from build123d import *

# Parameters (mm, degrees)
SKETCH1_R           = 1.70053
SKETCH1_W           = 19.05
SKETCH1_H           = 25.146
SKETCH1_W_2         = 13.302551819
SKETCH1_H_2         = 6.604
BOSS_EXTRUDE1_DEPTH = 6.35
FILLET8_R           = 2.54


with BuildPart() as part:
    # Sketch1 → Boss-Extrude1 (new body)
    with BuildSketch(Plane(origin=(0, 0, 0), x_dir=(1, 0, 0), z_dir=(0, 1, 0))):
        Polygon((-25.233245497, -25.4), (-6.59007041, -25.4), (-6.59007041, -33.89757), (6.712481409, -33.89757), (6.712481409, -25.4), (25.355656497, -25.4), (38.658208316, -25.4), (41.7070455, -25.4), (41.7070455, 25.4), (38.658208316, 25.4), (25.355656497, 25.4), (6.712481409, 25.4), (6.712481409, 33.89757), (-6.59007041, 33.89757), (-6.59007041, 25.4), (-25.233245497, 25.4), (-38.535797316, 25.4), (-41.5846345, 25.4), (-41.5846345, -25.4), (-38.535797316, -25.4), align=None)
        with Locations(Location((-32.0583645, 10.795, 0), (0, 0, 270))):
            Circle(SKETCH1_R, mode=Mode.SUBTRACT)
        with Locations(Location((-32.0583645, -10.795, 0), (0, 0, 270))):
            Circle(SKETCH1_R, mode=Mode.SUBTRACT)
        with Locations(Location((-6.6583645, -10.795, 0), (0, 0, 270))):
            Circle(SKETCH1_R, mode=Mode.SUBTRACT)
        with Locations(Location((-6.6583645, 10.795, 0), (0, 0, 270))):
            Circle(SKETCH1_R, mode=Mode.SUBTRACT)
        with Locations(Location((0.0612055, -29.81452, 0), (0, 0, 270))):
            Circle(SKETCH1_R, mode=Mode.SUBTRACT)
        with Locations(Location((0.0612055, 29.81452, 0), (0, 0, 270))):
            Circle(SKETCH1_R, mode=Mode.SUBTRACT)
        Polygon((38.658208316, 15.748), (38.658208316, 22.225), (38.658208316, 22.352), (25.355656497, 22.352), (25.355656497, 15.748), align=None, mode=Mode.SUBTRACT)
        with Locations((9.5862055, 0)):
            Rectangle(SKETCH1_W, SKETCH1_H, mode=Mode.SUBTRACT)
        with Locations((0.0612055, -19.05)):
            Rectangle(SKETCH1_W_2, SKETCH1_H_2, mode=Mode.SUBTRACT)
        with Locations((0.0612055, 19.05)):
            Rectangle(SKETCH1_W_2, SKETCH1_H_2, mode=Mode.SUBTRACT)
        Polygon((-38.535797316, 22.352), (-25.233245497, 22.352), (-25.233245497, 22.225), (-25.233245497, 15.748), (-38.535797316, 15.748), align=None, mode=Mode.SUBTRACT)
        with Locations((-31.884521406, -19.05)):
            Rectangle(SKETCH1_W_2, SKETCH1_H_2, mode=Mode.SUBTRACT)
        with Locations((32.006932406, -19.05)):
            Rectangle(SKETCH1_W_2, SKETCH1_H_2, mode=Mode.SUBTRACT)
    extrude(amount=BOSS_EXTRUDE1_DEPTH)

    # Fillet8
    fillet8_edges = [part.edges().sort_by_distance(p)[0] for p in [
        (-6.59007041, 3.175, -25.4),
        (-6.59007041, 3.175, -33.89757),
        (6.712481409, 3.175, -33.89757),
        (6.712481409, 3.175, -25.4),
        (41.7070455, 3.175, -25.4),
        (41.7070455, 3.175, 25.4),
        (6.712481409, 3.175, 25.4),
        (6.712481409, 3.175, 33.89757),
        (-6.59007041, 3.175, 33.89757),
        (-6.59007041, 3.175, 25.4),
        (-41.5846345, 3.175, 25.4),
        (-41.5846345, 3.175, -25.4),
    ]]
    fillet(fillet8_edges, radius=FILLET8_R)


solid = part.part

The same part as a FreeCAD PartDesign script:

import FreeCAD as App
import Part
import Sketcher
from FreeCAD import Vector
Q = App.Units.Quantity


def edges_at(feature, points):
    """Names of the edges that pass closest to the given points."""
    edges = feature.Shape.Edges
    near = lambda p: min(range(len(edges)), key=lambda i: edges[i].distToShape(Part.Vertex(*p))[0])
    return sorted({f"Edge{near(p) + 1}" for p in points})

doc = App.newDocument("Part")
params = doc.addObject("Spreadsheet::Sheet", "Params")
for row, (alias, value) in enumerate([
    ("sketch1_height", "2 in"),
    ("sketch1_width", "0.75 in"),
    ("sketch1_height2", "0.26 in"),
    ("sketch1_height3", "0.99 in"),
    ("pad1_length", "0.25 in"),
    ("fillet_radius", "0.1 in"),
], start=1):
    params.set(f"A{row}", alias)
    params.set(f"B{row}", "=" + value)
    params.setAlias(f"B{row}", alias)

body = doc.addObject("PartDesign::Body", "Body")

# Sketch on XZ plane
sketch1 = body.newObject("Sketcher::SketchObject", "Sketch")
sketch1.AttachmentSupport = (doc.getObject("XZ_Plane"), [""])
sketch1.MapMode = "FlatFace"
sketch1.addGeometry([
    Part.LineSegment(Vector(-6.59007, 25.4, 0), Vector(-6.59007, 33.89757, 0)),  # 0
    Part.LineSegment(Vector(-6.59007, 33.89757, 0), Vector(6.712481, 33.89757, 0)),  # 1
    Part.LineSegment(Vector(6.712481, 33.89757, 0), Vector(6.712481, 25.4, 0)),  # 2
    Part.LineSegment(Vector(6.712481, 25.4, 0), Vector(41.707045, 25.4, 0)),  # 3
    Part.LineSegment(Vector(41.707045, 25.4, 0), Vector(41.707045, -25.4, 0)),  # 4
    Part.LineSegment(Vector(41.707045, -25.4, 0), Vector(6.712481, -25.4, 0)),  # 5
    Part.LineSegment(Vector(6.712481, -25.4, 0), Vector(6.712481, -33.89757, 0)),  # 6
    Part.LineSegment(Vector(6.712481, -33.89757, 0), Vector(-6.59007, -33.89757, 0)),  # 7
    Part.LineSegment(Vector(-6.59007, -33.89757, 0), Vector(-6.59007, -25.4, 0)),  # 8
    Part.LineSegment(Vector(-6.59007, -25.4, 0), Vector(-41.584634, -25.4, 0)),  # 9
    Part.LineSegment(Vector(-41.584634, -25.4, 0), Vector(-41.584634, 25.4, 0)),  # 10
    Part.LineSegment(Vector(-41.584634, 25.4, 0), Vector(-6.59007, 25.4, 0)),  # 11
    Part.LineSegment(Vector(-25.233245, 22.352, 0), Vector(-38.535797, 22.352, 0)),  # 12
    Part.LineSegment(Vector(-38.535797, 22.352, 0), Vector(-38.535797, 15.748, 0)),  # 13
    Part.LineSegment(Vector(-38.535797, 15.748, 0), Vector(-25.233245, 15.748, 0)),  # 14
    Part.LineSegment(Vector(-25.233245, 15.748, 0), Vector(-25.233245, 22.352, 0)),  # 15
    Part.Circle(Vector(-32.058365, 10.795, 0), Vector(0, 0, 1), 1.70053),  # 16
    Part.Circle(Vector(-6.658365, 10.795, 0), Vector(0, 0, 1), 1.70053),  # 17
    Part.Circle(Vector(0.061206, 29.81452, 0), Vector(0, 0, 1), 1.70053),  # 18
    Part.LineSegment(Vector(6.712481, 22.352, 0), Vector(-6.59007, 22.352, 0)),  # 19
    Part.LineSegment(Vector(-6.59007, 22.352, 0), Vector(-6.59007, 15.748, 0)),  # 20
    Part.LineSegment(Vector(-6.59007, 15.748, 0), Vector(6.712481, 15.748, 0)),  # 21
    Part.LineSegment(Vector(6.712481, 15.748, 0), Vector(6.712481, 22.352, 0)),  # 22
    Part.LineSegment(Vector(38.658208, 22.352, 0), Vector(25.355656, 22.352, 0)),  # 23
    Part.LineSegment(Vector(25.355656, 22.352, 0), Vector(25.355656, 15.748, 0)),  # 24
    Part.LineSegment(Vector(25.355656, 15.748, 0), Vector(38.658208, 15.748, 0)),  # 25
    Part.LineSegment(Vector(38.658208, 15.748, 0), Vector(38.658208, 22.352, 0)),  # 26
    Part.LineSegment(Vector(19.111206, 12.573, 0), Vector(0.061206, 12.573, 0)),  # 27
    Part.LineSegment(Vector(0.061206, 12.573, 0), Vector(0.061206, -12.573, 0)),  # 28
    Part.LineSegment(Vector(0.061206, -12.573, 0), Vector(19.111206, -12.573, 0)),  # 29
    Part.LineSegment(Vector(19.111206, -12.573, 0), Vector(19.111206, 12.573, 0)),  # 30
    Part.Circle(Vector(-32.058365, -10.795, 0), Vector(0, 0, 1), 1.70053),  # 31
    Part.Circle(Vector(-6.658365, -10.795, 0), Vector(0, 0, 1), 1.70053),  # 32
    Part.LineSegment(Vector(-38.535797, -15.748, 0), Vector(-38.535797, -22.352, 0)),  # 33
    Part.LineSegment(Vector(-38.535797, -22.352, 0), Vector(-25.233245, -22.352, 0)),  # 34
    Part.LineSegment(Vector(-25.233245, -22.352, 0), Vector(-25.233245, -15.748, 0)),  # 35
    Part.LineSegment(Vector(-25.233245, -15.748, 0), Vector(-38.535797, -15.748, 0)),  # 36
    Part.LineSegment(Vector(6.712481, -15.748, 0), Vector(-6.59007, -15.748, 0)),  # 37
    Part.LineSegment(Vector(-6.59007, -15.748, 0), Vector(-6.59007, -22.352, 0)),  # 38
    Part.LineSegment(Vector(-6.59007, -22.352, 0), Vector(6.712481, -22.352, 0)),  # 39
    Part.LineSegment(Vector(6.712481, -22.352, 0), Vector(6.712481, -15.748, 0)),  # 40
    Part.Circle(Vector(0.061206, -29.81452, 0), Vector(0, 0, 1), 1.70053),  # 41
    Part.LineSegment(Vector(38.658208, -22.352, 0), Vector(38.658208, -15.748, 0)),  # 42
    Part.LineSegment(Vector(38.658208, -15.748, 0), Vector(25.355656, -15.748, 0)),  # 43
    Part.LineSegment(Vector(25.355656, -15.748, 0), Vector(25.355656, -22.352, 0)),  # 44
    Part.LineSegment(Vector(25.355656, -22.352, 0), Vector(38.658208, -22.352, 0)),  # 45
], False)
sketch1.addConstraint([
    Sketcher.Constraint("Coincident", 0, 2, 1, 1),
    Sketcher.Constraint("Coincident", 1, 2, 2, 1),
    Sketcher.Constraint("Coincident", 2, 2, 3, 1),
    Sketcher.Constraint("Coincident", 3, 2, 4, 1),
    Sketcher.Constraint("Coincident", 4, 2, 5, 1),
    Sketcher.Constraint("Coincident", 5, 2, 6, 1),
    Sketcher.Constraint("Coincident", 6, 2, 7, 1),
    Sketcher.Constraint("Coincident", 7, 2, 8, 1),
    Sketcher.Constraint("Coincident", 8, 2, 9, 1),
    Sketcher.Constraint("Coincident", 9, 2, 10, 1),
    Sketcher.Constraint("Coincident", 10, 2, 11, 1),
    Sketcher.Constraint("Coincident", 11, 2, 0, 1),
    Sketcher.Constraint("Coincident", 12, 2, 13, 1),
    Sketcher.Constraint("Coincident", 13, 2, 14, 1),
    Sketcher.Constraint("Coincident", 14, 2, 15, 1),
    Sketcher.Constraint("Coincident", 15, 2, 12, 1),
    Sketcher.Constraint("Coincident", 19, 2, 20, 1),
    Sketcher.Constraint("Coincident", 20, 2, 21, 1),
    Sketcher.Constraint("Coincident", 21, 2, 22, 1),
    Sketcher.Constraint("Coincident", 22, 2, 19, 1),
    Sketcher.Constraint("Coincident", 23, 2, 24, 1),
    Sketcher.Constraint("Coincident", 24, 2, 25, 1),
    Sketcher.Constraint("Coincident", 25, 2, 26, 1),
    Sketcher.Constraint("Coincident", 26, 2, 23, 1),
    Sketcher.Constraint("Coincident", 27, 2, 28, 1),
    Sketcher.Constraint("Coincident", 28, 2, 29, 1),
    Sketcher.Constraint("Coincident", 29, 2, 30, 1),
    Sketcher.Constraint("Coincident", 30, 2, 27, 1),
    Sketcher.Constraint("Coincident", 33, 2, 34, 1),
    Sketcher.Constraint("Coincident", 34, 2, 35, 1),
    Sketcher.Constraint("Coincident", 35, 2, 36, 1),
    Sketcher.Constraint("Coincident", 36, 2, 33, 1),
    Sketcher.Constraint("Coincident", 37, 2, 38, 1),
    Sketcher.Constraint("Coincident", 38, 2, 39, 1),
    Sketcher.Constraint("Coincident", 39, 2, 40, 1),
    Sketcher.Constraint("Coincident", 40, 2, 37, 1),
    Sketcher.Constraint("Coincident", 42, 2, 43, 1),
    Sketcher.Constraint("Coincident", 43, 2, 44, 1),
    Sketcher.Constraint("Coincident", 44, 2, 45, 1),
    Sketcher.Constraint("Coincident", 45, 2, 42, 1),
    Sketcher.Constraint("Vertical", 0),
    Sketcher.Constraint("Horizontal", 1),
    Sketcher.Constraint("Vertical", 2),
    Sketcher.Constraint("Horizontal", 3),
    Sketcher.Constraint("Vertical", 4),
    Sketcher.Constraint("Horizontal", 5),
    Sketcher.Constraint("Vertical", 6),
    Sketcher.Constraint("Horizontal", 7),
    Sketcher.Constraint("Vertical", 8),
    Sketcher.Constraint("Horizontal", 9),
    Sketcher.Constraint("Vertical", 10),
    Sketcher.Constraint("Horizontal", 11),
    Sketcher.Constraint("Horizontal", 12),
    Sketcher.Constraint("Vertical", 13),
    Sketcher.Constraint("Horizontal", 14),
    Sketcher.Constraint("Vertical", 15),
    Sketcher.Constraint("Horizontal", 19),
    Sketcher.Constraint("Vertical", 20),
    Sketcher.Constraint("Horizontal", 21),
    Sketcher.Constraint("Vertical", 22),
    Sketcher.Constraint("Horizontal", 23),
    Sketcher.Constraint("Vertical", 24),
    Sketcher.Constraint("Horizontal", 25),
    Sketcher.Constraint("Vertical", 26),
    Sketcher.Constraint("Horizontal", 27),
    Sketcher.Constraint("Vertical", 28),
    Sketcher.Constraint("Horizontal", 29),
    Sketcher.Constraint("Vertical", 30),
    Sketcher.Constraint("Vertical", 33),
    Sketcher.Constraint("Horizontal", 34),
    Sketcher.Constraint("Vertical", 35),
    Sketcher.Constraint("Horizontal", 36),
    Sketcher.Constraint("Horizontal", 37),
    Sketcher.Constraint("Vertical", 38),
    Sketcher.Constraint("Horizontal", 39),
    Sketcher.Constraint("Vertical", 40),
    Sketcher.Constraint("Vertical", 42),
    Sketcher.Constraint("Horizontal", 43),
    Sketcher.Constraint("Vertical", 44),
    Sketcher.Constraint("Horizontal", 45),
    Sketcher.Constraint("Equal", 16, 17),
    Sketcher.Constraint("Equal", 17, 18),
    Sketcher.Constraint("Equal", 18, 31),
    Sketcher.Constraint("Equal", 31, 32),
    Sketcher.Constraint("Equal", 32, 41),
    Sketcher.Constraint("Symmetric", 16, 3, 31, 3, -1),
    Sketcher.Constraint("Symmetric", 17, 3, 32, 3, -1),
    Sketcher.Constraint("Symmetric", 18, 3, 41, 3, -1),
    Sketcher.Constraint("Symmetric", 2, 2, 5, 2, -1),
    Sketcher.Constraint("Symmetric", 0, 2, 7, 2, -1),
    Sketcher.Constraint("Symmetric", 12, 2, 33, 2, -1),
    Sketcher.Constraint("Symmetric", 14, 2, 35, 2, -1),
    Sketcher.Constraint("Symmetric", 20, 2, 37, 2, -1),
    Sketcher.Constraint("Symmetric", 22, 2, 39, 2, -1),
    Sketcher.Constraint("Symmetric", 25, 2, 42, 2, -1),
    Sketcher.Constraint("Symmetric", 23, 2, 44, 2, -1),
    Sketcher.Constraint("Horizontal", 16, 3, 17, 3),
    Sketcher.Constraint("Horizontal", 5, 2, 8, 2),
    Sketcher.Constraint("Horizontal", 3, 2, 10, 2),
    Sketcher.Constraint("Horizontal", 15, 2, 19, 2),
    Sketcher.Constraint("Horizontal", 14, 2, 20, 2),
    Sketcher.Constraint("Horizontal", 22, 2, 23, 2),
    Sketcher.Constraint("Horizontal", 21, 2, 24, 2),
    Sketcher.Constraint("Vertical", 11, 2, 19, 2),
    Sketcher.Constraint("Vertical", 6, 2, 21, 2),
    Sketcher.Constraint("Vertical", 41, 3, 27, 2),
    Sketcher.Constraint("Equal", 5, 9),
    Sketcher.Constraint("Equal", 7, 12),
    Sketcher.Constraint("Equal", 21, 23),
    Sketcher.Constraint("DistanceY", 4, 2, 4, 1, Q("2 in")),
    Sketcher.Constraint("DistanceX", 16, 3, 17, 3, Q("1 in")),
    Sketcher.Constraint("Diameter", 16, Q("0.1339 in")),
    Sketcher.Constraint("DistanceX", 27, 2, 27, 1, Q("0.75 in")),
    Sketcher.Constraint("DistanceY", 13, 2, 13, 1, Q("0.26 in")),
    Sketcher.Constraint("DistanceY", 28, 2, 28, 1, Q("0.99 in")),
    Sketcher.Constraint("DistanceY", -1, 1, 12, 2, Q("0.88 in")),
    Sketcher.Constraint("DistanceY", 31, 3, 16, 3, Q("0.85 in")),
    Sketcher.Constraint("DistanceY", 17, 3, 27, 2, Q("0.07 in")),
    Sketcher.Constraint("DistanceY", -1, 1, 18, 3, Q("1.1738 in")),
    Sketcher.Constraint("DistanceX", 18, 3, 3, 2, Q("1.6396 in")),
    Sketcher.Constraint("DistanceX", 10, 2, 18, 3, Q("1.6396 in")),
    Sketcher.Constraint("DistanceX", 1, 1, 1, 2, Q("13.302552 mm")),
    Sketcher.Constraint("DistanceY", 0, 1, 0, 2, Q("8.49757 mm")),
    Sketcher.Constraint("DistanceX", 0, 2, -1, 1, Q("6.59007 mm")),
    Sketcher.Constraint("DistanceX", -1, 1, 25, 2, Q("38.658208 mm")),
    Sketcher.Constraint("DistanceX", 17, 3, 18, 3, Q("6.71957 mm")),
    Sketcher.Constraint("DistanceX", 16, 3, 14, 2, Q("6.825119 mm")),
])
sketch1.setExpression("Constraints[109]", "Params.sketch1_height")
sketch1.setExpression("Constraints[112]", "Params.sketch1_width")
sketch1.setExpression("Constraints[113]", "Params.sketch1_height2")
sketch1.setExpression("Constraints[114]", "Params.sketch1_height3")
pad1 = body.newObject("PartDesign::Pad", "Pad")
pad1.Profile = sketch1
pad1.setExpression("Length", "Params.pad1_length")
pad1.Reversed = True
doc.recompute()

fillet = body.newObject("PartDesign::Fillet", "Fillet")
fillet.Base = (pad1, edges_at(pad1, [
    (-6.59, 3.175, -25.4),
    (-6.59, 3.175, -33.898),
    (6.712, 3.175, -33.898),
    (6.712, 3.175, -25.4),
    (41.707, 3.175, -25.4),
    (41.707, 3.175, 25.4),
    (6.712, 3.175, 25.4),
    (6.712, 3.175, 33.898),
    (-6.59, 3.175, 33.898),
    (-6.59, 3.175, 25.4),
    (-41.585, 3.175, 25.4),
    (-41.585, 3.175, -25.4),
]))
fillet.setExpression("Radius", "Params.fillet_radius")

doc.recompute()
